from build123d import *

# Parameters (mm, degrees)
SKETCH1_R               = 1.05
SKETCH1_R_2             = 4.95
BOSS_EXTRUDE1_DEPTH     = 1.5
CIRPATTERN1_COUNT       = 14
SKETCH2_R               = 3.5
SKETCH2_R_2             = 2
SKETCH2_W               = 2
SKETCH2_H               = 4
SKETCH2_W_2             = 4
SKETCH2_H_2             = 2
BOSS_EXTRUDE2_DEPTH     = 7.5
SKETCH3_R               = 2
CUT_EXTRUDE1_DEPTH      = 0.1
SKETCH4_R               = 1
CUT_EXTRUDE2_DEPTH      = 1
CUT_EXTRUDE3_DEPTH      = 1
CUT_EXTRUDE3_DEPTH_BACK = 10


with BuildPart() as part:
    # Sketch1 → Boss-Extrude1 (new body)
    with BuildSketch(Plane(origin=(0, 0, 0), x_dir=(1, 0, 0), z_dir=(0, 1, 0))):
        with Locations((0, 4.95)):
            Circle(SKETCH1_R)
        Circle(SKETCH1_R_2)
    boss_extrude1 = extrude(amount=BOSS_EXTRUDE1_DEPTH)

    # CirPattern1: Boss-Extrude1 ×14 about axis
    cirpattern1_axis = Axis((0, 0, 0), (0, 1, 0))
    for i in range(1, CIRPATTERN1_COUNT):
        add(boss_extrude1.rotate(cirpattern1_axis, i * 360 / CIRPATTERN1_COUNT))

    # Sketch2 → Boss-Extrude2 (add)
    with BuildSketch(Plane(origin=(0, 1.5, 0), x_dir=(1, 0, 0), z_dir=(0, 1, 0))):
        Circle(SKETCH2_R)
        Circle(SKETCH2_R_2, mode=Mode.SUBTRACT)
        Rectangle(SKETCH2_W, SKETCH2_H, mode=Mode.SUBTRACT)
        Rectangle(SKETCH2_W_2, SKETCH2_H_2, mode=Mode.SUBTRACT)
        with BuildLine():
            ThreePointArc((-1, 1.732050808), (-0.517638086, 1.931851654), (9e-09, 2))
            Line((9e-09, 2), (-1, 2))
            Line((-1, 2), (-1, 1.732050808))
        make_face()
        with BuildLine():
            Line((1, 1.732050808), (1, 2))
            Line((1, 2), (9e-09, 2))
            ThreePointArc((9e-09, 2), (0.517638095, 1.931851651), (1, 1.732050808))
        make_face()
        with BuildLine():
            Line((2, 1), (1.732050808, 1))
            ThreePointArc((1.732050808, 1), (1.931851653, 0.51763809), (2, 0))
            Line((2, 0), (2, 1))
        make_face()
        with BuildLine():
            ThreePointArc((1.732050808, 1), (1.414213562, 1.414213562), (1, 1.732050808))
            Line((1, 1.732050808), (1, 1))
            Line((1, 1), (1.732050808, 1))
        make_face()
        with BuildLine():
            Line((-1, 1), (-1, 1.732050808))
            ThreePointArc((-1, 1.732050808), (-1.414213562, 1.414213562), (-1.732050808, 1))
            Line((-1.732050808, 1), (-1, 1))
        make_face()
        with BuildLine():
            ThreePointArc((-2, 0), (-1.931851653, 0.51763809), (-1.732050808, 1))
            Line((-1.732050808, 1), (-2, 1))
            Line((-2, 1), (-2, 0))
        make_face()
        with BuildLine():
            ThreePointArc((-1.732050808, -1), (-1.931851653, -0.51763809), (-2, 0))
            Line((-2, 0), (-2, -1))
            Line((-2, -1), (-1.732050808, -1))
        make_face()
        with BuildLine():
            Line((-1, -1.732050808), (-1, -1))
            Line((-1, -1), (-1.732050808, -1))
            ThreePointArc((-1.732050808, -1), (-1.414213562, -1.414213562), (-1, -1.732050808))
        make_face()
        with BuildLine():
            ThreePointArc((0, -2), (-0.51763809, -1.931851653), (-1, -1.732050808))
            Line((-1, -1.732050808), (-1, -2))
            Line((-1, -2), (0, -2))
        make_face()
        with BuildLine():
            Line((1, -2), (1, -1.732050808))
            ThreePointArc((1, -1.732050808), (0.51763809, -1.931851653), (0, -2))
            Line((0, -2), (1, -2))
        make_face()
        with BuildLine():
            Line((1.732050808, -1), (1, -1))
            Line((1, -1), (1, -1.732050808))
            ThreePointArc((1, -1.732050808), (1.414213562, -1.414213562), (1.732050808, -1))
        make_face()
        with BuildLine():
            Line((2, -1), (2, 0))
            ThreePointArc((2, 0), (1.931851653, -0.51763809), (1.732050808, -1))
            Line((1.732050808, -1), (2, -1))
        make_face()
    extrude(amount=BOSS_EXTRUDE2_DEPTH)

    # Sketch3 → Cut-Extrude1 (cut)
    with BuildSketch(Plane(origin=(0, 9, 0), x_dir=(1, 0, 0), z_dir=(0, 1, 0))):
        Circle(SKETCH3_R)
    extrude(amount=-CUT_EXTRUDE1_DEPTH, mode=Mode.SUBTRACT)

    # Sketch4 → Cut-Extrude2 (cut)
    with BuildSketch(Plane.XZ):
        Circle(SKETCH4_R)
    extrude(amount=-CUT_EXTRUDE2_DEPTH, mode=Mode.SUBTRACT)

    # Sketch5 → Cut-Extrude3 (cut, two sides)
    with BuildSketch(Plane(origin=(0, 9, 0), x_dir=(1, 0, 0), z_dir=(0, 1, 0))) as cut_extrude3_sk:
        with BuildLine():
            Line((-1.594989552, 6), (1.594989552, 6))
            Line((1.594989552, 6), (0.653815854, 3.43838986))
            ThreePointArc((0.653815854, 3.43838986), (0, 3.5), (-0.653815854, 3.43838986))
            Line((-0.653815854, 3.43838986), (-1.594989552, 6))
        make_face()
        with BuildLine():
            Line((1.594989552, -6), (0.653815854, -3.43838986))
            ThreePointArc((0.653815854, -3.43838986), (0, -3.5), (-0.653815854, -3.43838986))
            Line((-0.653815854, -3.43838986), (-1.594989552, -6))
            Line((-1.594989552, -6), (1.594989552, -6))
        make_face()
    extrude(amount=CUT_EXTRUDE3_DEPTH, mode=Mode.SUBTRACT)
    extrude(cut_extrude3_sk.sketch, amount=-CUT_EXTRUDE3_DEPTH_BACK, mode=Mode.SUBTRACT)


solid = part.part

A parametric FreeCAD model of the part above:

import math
import FreeCAD as App
import Part
import Sketcher
from FreeCAD import Vector

doc = App.newDocument("Part")
body = doc.addObject("PartDesign::Body", "Body")

sketch1 = body.newObject("Sketcher::SketchObject", "Sketch")
sketch1.AttachmentSupport = (doc.getObject("XZ_Plane"), [""])
sketch1.MapMode = "FlatFace"
sketch1.addGeometry([
    Part.ArcOfCircle(Part.Circle(Vector(0, -5, 0), Vector(0, 0, 1), 1.1), math.radians(174), math.radians(366)),
    Part.ArcOfCircle(Part.Circle(Vector(0, 0, 0), Vector(0, 0, 1), 5), math.radians(-78), math.radians(258)),
], False)
sketch1.addConstraint([
    Sketcher.Constraint("Coincident", 0, 1, 1, 2),
    Sketcher.Constraint("Coincident", 1, 1, 0, 2),
    Sketcher.Constraint("Coincident", 1, 3, -1, 1),
    Sketcher.Constraint("PointOnObject", 0, 3, -2),
    Sketcher.Constraint("Radius", 0, 1.05),
    Sketcher.Constraint("Radius", 1, 4.95),
    Sketcher.Constraint("DistanceY", 0, 3, -1, 1, 4.95),
])
pad1 = body.newObject("PartDesign::Pad", "Pad")
pad1.Profile = sketch1
pad1.Length = 1.5
pad1.Reversed = True
doc.recompute()

polarpattern = body.newObject("PartDesign::PolarPattern", "PolarPattern")
polarpattern.Originals = [pad1]
polarpattern.Axis = (doc.getObject("Y_Axis"), [""])
polarpattern.Angle = 360
polarpattern.Occurrences = 14
body.Tip = polarpattern

sketch2 = body.newObject("Sketcher::SketchObject", "Sketch001")
sketch2.AttachmentSupport = (doc.getObject("XZ_Plane"), [""])
sketch2.MapMode = "FlatFace"
sketch2.AttachmentOffset = App.Placement(Vector(0, 0, -1.5), App.Rotation())
sketch2.addGeometry([
    Part.Circle(Vector(0, 0, 0), Vector(0, 0, 1), 3.5),
    Part.ArcOfCircle(Part.Circle(Vector(0, 0, 0), Vector(0, 0, 1), 2), math.radians(-30), math.radians(0)),
    Part.ArcOfCircle(Part.Circle(Vector(0, 0, 0), Vector(0, 0, 1), 2), math.radians(0), math.radians(30)),
    Part.LineSegment(Vector(1.7, 1, 0), Vector(1, 1, 0)),
    Part.LineSegment(Vector(1, 1, 0), Vector(1, 1.7, 0)),
    Part.ArcOfCircle(Part.Circle(Vector(0, 0, 0), Vector(0, 0, 1), 2), math.radians(60), math.radians(90)),
    Part.ArcOfCircle(Part.Circle(Vector(0, 0, 0), Vector(0, 0, 1), 2), math.radians(90), math.radians(120)),
    Part.LineSegment(Vector(-1, 1.7, 0), Vector(-1, 1, 0)),
    Part.LineSegment(Vector(-1, 1, 0), Vector(-1.7, 1, 0)),
    Part.ArcOfCircle(Part.Circle(Vector(0, 0, 0), Vector(0, 0, 1), 2), math.radians(150), math.radians(180)),
    Part.ArcOfCircle(Part.Circle(Vector(0, 0, 0), Vector(0, 0, 1), 2), math.radians(180), math.radians(210)),
    Part.LineSegment(Vector(-1.7, -1, 0), Vector(-1, -1, 0)),
    Part.LineSegment(Vector(-1, -1, 0), Vector(-1, -1.7, 0)),
    Part.ArcOfCircle(Part.Circle(Vector(0, 0, 0), Vector(0, 0, 1), 2), math.radians(-120), math.radians(-90)),
    Part.ArcOfCircle(Part.Circle(Vector(0, 0, 0), Vector(0, 0, 1), 2), math.radians(-90), math.radians(-60)),
    Part.LineSegment(Vector(1, -1.7, 0), Vector(1, -1, 0)),
    Part.LineSegment(Vector(1, -1, 0), Vector(1.7, -1, 0)),
], False)
sketch2.addConstraint([
    Sketcher.Constraint("Tangent", 1, 2, 2, 1),
    Sketcher.Constraint("Coincident", 2, 2, 3, 1),
    Sketcher.Constraint("Coincident", 3, 2, 4, 1),
    Sketcher.Constraint("Coincident", 4, 2, 5, 1),
    Sketcher.Constraint("Tangent", 5, 2, 6, 1),
    Sketcher.Constraint("Coincident", 6, 2, 7, 1),
    Sketcher.Constraint("Coincident", 7, 2, 8, 1),
    Sketcher.Constraint("Coincident", 8, 2, 9, 1),
    Sketcher.Constraint("Tangent", 9, 2, 10, 1),
    Sketcher.Constraint("Coincident", 10, 2, 11, 1),
    Sketcher.Constraint("Coincident", 11, 2, 12, 1),
    Sketcher.Constraint("Coincident", 12, 2, 13, 1),
    Sketcher.Constraint("Tangent", 13, 2, 14, 1),
    Sketcher.Constraint("Coincident", 14, 2, 15, 1),
    Sketcher.Constraint("Coincident", 15, 2, 16, 1),
    Sketcher.Constraint("Coincident", 16, 2, 1, 1),
    Sketcher.Constraint("Horizontal", 3),
    Sketcher.Constraint("Vertical", 4),
    Sketcher.Constraint("Vertical", 7),
    Sketcher.Constraint("Horizontal", 8),
    Sketcher.Constraint("Horizontal", 11),
    Sketcher.Constraint("Vertical", 12),
    Sketcher.Constraint("Vertical", 15),
    Sketcher.Constraint("Horizontal", 16),
    Sketcher.Constraint("Coincident", 0, 3, -1, 1),
    Sketcher.Constraint("Coincident", 1, 3, -1, 1),
    Sketcher.Constraint("Coincident", 5, 3, -1, 1),
    Sketcher.Constraint("Coincident", 9, 3, -1, 1),
    Sketcher.Constraint("Coincident", 13, 3, -1, 1),
    Sketcher.Constraint("Equal", 1, 2),
    Sketcher.Constraint("Equal", 2, 5),
    Sketcher.Constraint("Equal", 5, 6),
    Sketcher.Constraint("Equal", 6, 9),
    Sketcher.Constraint("Equal", 9, 10),
    Sketcher.Constraint("Equal", 10, 13),
    Sketcher.Constraint("Equal", 13, 14),
    Sketcher.Constraint("Symmetric", 3, 2, 11, 2, -1, 1),
    Sketcher.Constraint("Symmetric", 7, 2, 15, 2, -1, 1),
    Sketcher.Constraint("Symmetric", 3, 2, 7, 2, -2),
    Sketcher.Constraint("PointOnObject", 1, 2, -1),
    Sketcher.Constraint("PointOnObject", 5, 2, -2),
    Sketcher.Constraint("PointOnObject", 9, 2, -1),
    Sketcher.Constraint("PointOnObject", 13, 2, -2),
    Sketcher.Constraint("Equal", 16, 4),
    Sketcher.Constraint("Diameter", 0, 7.0),
    Sketcher.Constraint("Radius", 1, 2.0),
    Sketcher.Constraint("DistanceY", -1, 1, 2, 2, 1.0),
])
pad2 = body.newObject("PartDesign::Pad", "Pad001")
pad2.Profile = sketch2
pad2.Length = 7.5
pad2.Reversed = True

sketch3 = body.newObject("Sketcher::SketchObject", "Sketch002")
sketch3.AttachmentSupport = (doc.getObject("XZ_Plane"), [""])
sketch3.MapMode = "FlatFace"
sketch3.AttachmentOffset = App.Placement(Vector(0, 0, -9), App.Rotation())
sketch3.addGeometry(Part.Circle(Vector(0, 0, 0), Vector(0, 0, 1), 2), False)
sketch3.addConstraint([
    Sketcher.Constraint("Coincident", 0, 3, -1, 1),
    Sketcher.Constraint("Diameter", 0, 4.0),
])
pocket1 = body.newObject("PartDesign::Pocket", "Pocket")
pocket1.Profile = sketch3
pocket1.Length = 0.1
pocket1.Reversed = True

sketch4 = body.newObject("Sketcher::SketchObject", "Sketch003")
sketch4.AttachmentSupport = (doc.getObject("XZ_Plane"), [""])
sketch4.MapMode = "FlatFace"
sketch4.addGeometry(Part.Circle(Vector(0, 0, 0), Vector(0, 0, 1), 1), False)
sketch4.addConstraint([
    Sketcher.Constraint("Coincident", 0, 3, -1, 1),
    Sketcher.Constraint("Diameter", 0, 2.0),
])
pocket2 = body.newObject("PartDesign::Pocket", "Pocket001")
pocket2.Profile = sketch4
pocket2.Length = 1

sketch5 = body.newObject("Sketcher::SketchObject", "Sketch004")
sketch5.AttachmentSupport = (doc.getObject("XZ_Plane"), [""])
sketch5.MapMode = "FlatFace"
sketch5.AttachmentOffset = App.Placement(Vector(0, 0, -9), App.Rotation())
sketch5.addGeometry([
    Part.LineSegment(Vector(1.6, -6, 0), Vector(-1.6, -6, 0)),
    Part.LineSegment(Vector(-1.6, -6, 0), Vector(-0.7, -3.4, 0)),
    Part.ArcOfCircle(Part.Circle(Vector(0, 0, 0), Vector(0, 0, 1), 3.5), math.radians(-101), math.radians(-79)),
    Part.LineSegment(Vector(0.7, -3.4, 0), Vector(1.6, -6, 0)),
    Part.LineSegment(Vector(1.6, 6, 0), Vector(0.7, 3.4, 0)),
    Part.ArcOfCircle(Part.Circle(Vector(0, 0, 0), Vector(0, 0, 1), 3.5), math.radians(79), math.radians(101)),
    Part.LineSegment(Vector(-0.7, 3.4, 0), Vector(-1.6, 6, 0)),
    Part.LineSegment(Vector(-1.6, 6, 0), Vector(1.6, 6, 0)),
], False)
sketch5.addConstraint([
    Sketcher.Constraint("Coincident", 0, 2, 1, 1),
    Sketcher.Constraint("Coincident", 1, 2, 2, 1),
    Sketcher.Constraint("Coincident", 2, 2, 3, 1),
    Sketcher.Constraint("Coincident", 3, 2, 0, 1),
    Sketcher.Constraint("Coincident", 4, 2, 5, 1),
    Sketcher.Constraint("Coincident", 5, 2, 6, 1),
    Sketcher.Constraint("Coincident", 6, 2, 7, 1),
    Sketcher.Constraint("Coincident", 7, 2, 4, 1),
    Sketcher.Constraint("Horizontal", 0),
    Sketcher.Constraint("Horizontal", 7),
    Sketcher.Constraint("Coincident", 2, 3, -1, 1),
    Sketcher.Constraint("Coincident", 5, 3, -1, 1),
    Sketcher.Constraint("Equal", 2, 5),
    Sketcher.Constraint("Symmetric", 3, 2, 6, 2, -1, 1),
    Sketcher.Constraint("Parallel", 1, 4),
    Sketcher.Constraint("Parallel", 3, 6),
    Sketcher.Constraint("Horizontal", 1, 2, 2, 2),
    Sketcher.Constraint("Horizontal", 4, 2, 5, 2),
    Sketcher.Constraint("Vertical", 0, 2, 6, 2),
    Sketcher.Constraint("Radius", 2, 3.5),
    Sketcher.Constraint("DistanceY", 0, 2, -1, 1, 6.0),
    Sketcher.Constraint("DistanceX", 0, 2, 0, 1, 3.189979),
    Sketcher.Constraint("Distance", 1, 2.729039),
])
pocket3 = body.newObject("PartDesign::Pocket", "Pocket002")
pocket3.Profile = sketch5
pocket3.Type = "ThroughAll"
pocket3.Midplane = True

doc.recompute()
